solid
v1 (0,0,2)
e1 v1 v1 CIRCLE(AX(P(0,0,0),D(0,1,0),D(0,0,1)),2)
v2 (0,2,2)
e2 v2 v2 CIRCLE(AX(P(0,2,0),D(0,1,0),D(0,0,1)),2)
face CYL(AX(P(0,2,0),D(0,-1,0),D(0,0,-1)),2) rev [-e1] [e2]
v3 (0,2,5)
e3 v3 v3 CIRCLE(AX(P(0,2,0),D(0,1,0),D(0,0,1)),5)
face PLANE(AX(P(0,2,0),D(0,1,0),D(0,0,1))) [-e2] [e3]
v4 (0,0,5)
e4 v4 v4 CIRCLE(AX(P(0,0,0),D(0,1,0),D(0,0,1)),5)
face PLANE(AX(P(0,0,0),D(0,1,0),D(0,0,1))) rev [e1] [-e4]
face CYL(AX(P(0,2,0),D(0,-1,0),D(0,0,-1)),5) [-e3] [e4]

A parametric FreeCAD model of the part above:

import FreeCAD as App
import Part
import Sketcher

V = App.Vector

doc = App.newDocument("Part")
body = doc.addObject("PartDesign::Body", "Body")

sketch1 = body.newObject("Sketcher::SketchObject", "Sketch")
sketch1.AttachmentSupport = (doc.getObject("XZ_Plane"), [""])
sketch1.MapMode = "FlatFace"
sketch1.addGeometry([
    Part.Circle(V(0, 0, 0), V(0, 0, 1), 5),
    Part.Circle(V(0, 0, 0), V(0, 0, 1), 2),
], False)
sketch1.addConstraint([
    Sketcher.Constraint("Coincident", 0, 3, -1, 1),
    Sketcher.Constraint("Coincident", 1, 3, -1, 1),
    Sketcher.Constraint("Diameter", 0, 10.0),
    Sketcher.Constraint("Diameter", 1, 4.0),
])
pad1 = body.newObject("PartDesign::Pad", "Pad")
pad1.Profile = sketch1
pad1.Length = 2
pad1.Reversed = True

doc.recompute()
